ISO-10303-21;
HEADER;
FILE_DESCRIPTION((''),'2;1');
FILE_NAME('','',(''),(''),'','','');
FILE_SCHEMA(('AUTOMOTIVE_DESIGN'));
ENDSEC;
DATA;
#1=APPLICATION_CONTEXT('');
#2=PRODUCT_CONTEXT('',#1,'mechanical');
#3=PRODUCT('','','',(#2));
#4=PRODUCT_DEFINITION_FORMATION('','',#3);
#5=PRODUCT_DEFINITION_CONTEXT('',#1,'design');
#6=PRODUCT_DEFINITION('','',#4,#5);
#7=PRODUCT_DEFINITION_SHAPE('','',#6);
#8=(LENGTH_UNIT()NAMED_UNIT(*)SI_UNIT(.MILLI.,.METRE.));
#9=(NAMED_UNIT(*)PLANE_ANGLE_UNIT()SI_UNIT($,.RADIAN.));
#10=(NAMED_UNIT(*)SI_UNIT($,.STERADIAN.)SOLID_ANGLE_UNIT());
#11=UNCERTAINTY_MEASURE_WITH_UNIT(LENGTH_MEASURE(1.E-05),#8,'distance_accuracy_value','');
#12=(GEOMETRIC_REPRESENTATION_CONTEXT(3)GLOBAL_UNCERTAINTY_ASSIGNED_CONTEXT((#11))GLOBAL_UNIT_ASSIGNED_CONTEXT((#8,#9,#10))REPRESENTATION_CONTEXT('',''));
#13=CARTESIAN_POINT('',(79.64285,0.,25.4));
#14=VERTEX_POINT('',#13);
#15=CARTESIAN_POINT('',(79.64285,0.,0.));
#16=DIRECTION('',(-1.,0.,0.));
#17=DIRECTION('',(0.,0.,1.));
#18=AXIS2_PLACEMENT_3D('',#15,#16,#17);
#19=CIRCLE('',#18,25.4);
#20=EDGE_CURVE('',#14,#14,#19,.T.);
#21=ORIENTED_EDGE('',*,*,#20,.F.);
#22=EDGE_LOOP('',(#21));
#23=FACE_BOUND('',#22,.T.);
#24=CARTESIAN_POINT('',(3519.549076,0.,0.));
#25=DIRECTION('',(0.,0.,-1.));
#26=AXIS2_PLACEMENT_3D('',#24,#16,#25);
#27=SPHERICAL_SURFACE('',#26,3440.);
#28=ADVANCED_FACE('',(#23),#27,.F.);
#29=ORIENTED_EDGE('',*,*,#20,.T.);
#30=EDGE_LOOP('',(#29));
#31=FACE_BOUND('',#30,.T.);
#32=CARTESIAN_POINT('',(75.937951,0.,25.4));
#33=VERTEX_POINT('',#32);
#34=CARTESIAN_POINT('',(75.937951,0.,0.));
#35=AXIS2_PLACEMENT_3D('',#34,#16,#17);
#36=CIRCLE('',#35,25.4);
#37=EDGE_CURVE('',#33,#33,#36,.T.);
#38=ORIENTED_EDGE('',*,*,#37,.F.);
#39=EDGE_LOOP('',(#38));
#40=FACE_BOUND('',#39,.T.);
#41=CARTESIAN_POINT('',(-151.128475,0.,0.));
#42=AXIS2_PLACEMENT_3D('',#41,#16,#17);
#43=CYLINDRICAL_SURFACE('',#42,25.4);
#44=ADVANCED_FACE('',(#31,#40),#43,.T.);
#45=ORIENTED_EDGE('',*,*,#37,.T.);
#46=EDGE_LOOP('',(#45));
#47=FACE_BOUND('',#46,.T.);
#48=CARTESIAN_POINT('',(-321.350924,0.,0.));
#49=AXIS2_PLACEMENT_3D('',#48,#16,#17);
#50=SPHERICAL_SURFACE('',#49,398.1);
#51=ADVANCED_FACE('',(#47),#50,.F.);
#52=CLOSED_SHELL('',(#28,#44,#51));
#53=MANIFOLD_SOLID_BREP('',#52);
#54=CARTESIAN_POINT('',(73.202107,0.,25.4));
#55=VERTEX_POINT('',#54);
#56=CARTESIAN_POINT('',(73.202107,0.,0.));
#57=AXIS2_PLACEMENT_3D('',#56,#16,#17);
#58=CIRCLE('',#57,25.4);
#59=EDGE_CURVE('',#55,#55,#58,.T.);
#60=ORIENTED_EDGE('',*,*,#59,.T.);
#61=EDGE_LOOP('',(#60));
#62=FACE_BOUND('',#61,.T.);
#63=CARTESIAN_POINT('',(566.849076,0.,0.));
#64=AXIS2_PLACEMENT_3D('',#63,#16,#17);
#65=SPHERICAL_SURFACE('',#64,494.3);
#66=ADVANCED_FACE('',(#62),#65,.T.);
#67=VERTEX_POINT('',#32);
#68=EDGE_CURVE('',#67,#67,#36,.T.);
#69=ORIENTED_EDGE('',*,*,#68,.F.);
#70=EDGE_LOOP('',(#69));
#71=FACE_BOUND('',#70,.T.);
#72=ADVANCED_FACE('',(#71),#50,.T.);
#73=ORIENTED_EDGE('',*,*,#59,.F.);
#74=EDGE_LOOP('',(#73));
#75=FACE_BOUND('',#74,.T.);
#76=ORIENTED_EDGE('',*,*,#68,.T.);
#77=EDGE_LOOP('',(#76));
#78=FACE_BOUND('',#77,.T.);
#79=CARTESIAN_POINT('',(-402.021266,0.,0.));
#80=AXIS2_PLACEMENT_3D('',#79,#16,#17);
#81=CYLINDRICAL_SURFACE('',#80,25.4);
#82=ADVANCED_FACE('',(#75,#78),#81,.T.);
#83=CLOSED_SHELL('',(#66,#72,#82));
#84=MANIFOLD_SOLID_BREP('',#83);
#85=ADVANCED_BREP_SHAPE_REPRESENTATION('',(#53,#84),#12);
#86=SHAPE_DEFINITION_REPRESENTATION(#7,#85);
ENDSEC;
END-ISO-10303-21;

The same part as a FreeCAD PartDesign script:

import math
import FreeCAD as App
import Part
import Sketcher
from FreeCAD import Vector

doc = App.newDocument("Part")
body = doc.addObject("PartDesign::Body", "Body")

sketch1 = body.newObject("Sketcher::SketchObject", "Sketch")
sketch1.AttachmentSupport = (doc.getObject("XZ_Plane"), [""])
sketch1.MapMode = "FlatFace"
sketch1.addGeometry(Part.ArcOfCircle(Part.Circle(Vector(566.8, 0, 0), Vector(0, 0, 1), 494.3), math.radians(180), math.radians(182.95)), False)
sketch1.addGeometry(Part.LineSegment(Vector(72.5, 0, 0), Vector(76.7, 0, 0)), False)
sketch1.addGeometry(Part.ArcOfCircle(Part.Circle(Vector(-321.4, 0, 0), Vector(0, 0, 1), 398.1), math.radians(-3.66), math.radians(0)), False)
sketch1.addGeometry(Part.LineSegment(Vector(75.9, -25.4, 0), Vector(73.2, -25.4, 0)), False)
sketch1.addConstraint(Sketcher.Constraint("Coincident", 0, 1, 1, 1))
sketch1.addConstraint(Sketcher.Constraint("Coincident", 1, 2, 2, 2))
sketch1.addConstraint(Sketcher.Constraint("Coincident", 2, 1, 3, 1))
sketch1.addConstraint(Sketcher.Constraint("Coincident", 3, 2, 0, 2))
sketch1.addConstraint(Sketcher.Constraint("Horizontal", 1))
sketch1.addConstraint(Sketcher.Constraint("Horizontal", 3))
sketch1.addConstraint(Sketcher.Constraint("PointOnObject", 0, 3, -1))
sketch1.addConstraint(Sketcher.Constraint("PointOnObject", 2, 3, -1))
sketch1.addConstraint(Sketcher.Constraint("PointOnObject", 1, 2, -1))
sketch1.addConstraint(Sketcher.Constraint("Radius", 0, 494.3))
sketch1.addConstraint(Sketcher.Constraint("Radius", 2, 398.100001))
sketch1.addConstraint(Sketcher.Constraint("DistanceX", 1, 1, 1, 2, 4.2))
sketch1.addConstraint(Sketcher.Constraint("DistanceY", 3, 2, -1, 1, 25.4))
sketch1.addConstraint(Sketcher.Constraint("DistanceX", -1, 1, 2, 1, 75.937951))
revolution = body.newObject("PartDesign::Revolution", "Revolution")
revolution.Profile = sketch1
revolution.ReferenceAxis = (sketch1, ["H_Axis"])
revolution.Angle = 360
body2 = doc.addObject("PartDesign::Body", "Body001")

sketch2 = body2.newObject("Sketcher::SketchObject", "Sketch001")
sketch2.AttachmentSupport = (doc.getObject("XZ_Plane001"), [""])
sketch2.MapMode = "FlatFace"
sketch2.addGeometry(Part.LineSegment(Vector(79.6, -25.4, 0), Vector(75.9, -25.4, 0)), False)
sketch2.addGeometry(Part.ArcOfCircle(Part.Circle(Vector(-321.4, 0, 0), Vector(0, 0, 1), 398.1), math.radians(-3.66), math.radians(0)), False)
sketch2.addGeometry(Part.LineSegment(Vector(76.7, 0, 0), Vector(79.5, 0, 0)), False)
sketch2.addGeometry(Part.ArcOfCircle(Part.Circle(Vector(3519.5, 0, 0), Vector(0, 0, 1), 3440), math.radians(180), math.radians(180.42)), False)
sketch2.addConstraint(Sketcher.Constraint("Coincident", 0, 2, 1, 1))
sketch2.addConstraint(Sketcher.Constraint("Coincident", 1, 2, 2, 1))
sketch2.addConstraint(Sketcher.Constraint("Coincident", 2, 2, 3, 1))
sketch2.addConstraint(Sketcher.Constraint("Coincident", 3, 2, 0, 1))
sketch2.addConstraint(Sketcher.Constraint("Horizontal", 0))
sketch2.addConstraint(Sketcher.Constraint("Horizontal", 2))
sketch2.addConstraint(Sketcher.Constraint("PointOnObject", 1, 3, -1))
sketch2.addConstraint(Sketcher.Constraint("PointOnObject", 3, 3, -1))
sketch2.addConstraint(Sketcher.Constraint("PointOnObject", 2, 2, -1))
sketch2.addConstraint(Sketcher.Constraint("Radius", 1, 398.100001))
sketch2.addConstraint(Sketcher.Constraint("DistanceX", 2, 1, 2, 2, 2.8))
sketch2.addConstraint(Sketcher.Constraint("DistanceY", 0, 2, -1, 1, 25.4))
sketch2.addConstraint(Sketcher.Constraint("Radius", 3, 3439.999942))
sketch2.addConstraint(Sketcher.Constraint("DistanceX", -1, 1, 0, 2, 75.937951))
revolution2 = body2.newObject("PartDesign::Revolution", "Revolution001")
revolution2.Profile = sketch2
revolution2.ReferenceAxis = (sketch2, ["H_Axis"])
revolution2.Angle = 360

doc.recompute()
